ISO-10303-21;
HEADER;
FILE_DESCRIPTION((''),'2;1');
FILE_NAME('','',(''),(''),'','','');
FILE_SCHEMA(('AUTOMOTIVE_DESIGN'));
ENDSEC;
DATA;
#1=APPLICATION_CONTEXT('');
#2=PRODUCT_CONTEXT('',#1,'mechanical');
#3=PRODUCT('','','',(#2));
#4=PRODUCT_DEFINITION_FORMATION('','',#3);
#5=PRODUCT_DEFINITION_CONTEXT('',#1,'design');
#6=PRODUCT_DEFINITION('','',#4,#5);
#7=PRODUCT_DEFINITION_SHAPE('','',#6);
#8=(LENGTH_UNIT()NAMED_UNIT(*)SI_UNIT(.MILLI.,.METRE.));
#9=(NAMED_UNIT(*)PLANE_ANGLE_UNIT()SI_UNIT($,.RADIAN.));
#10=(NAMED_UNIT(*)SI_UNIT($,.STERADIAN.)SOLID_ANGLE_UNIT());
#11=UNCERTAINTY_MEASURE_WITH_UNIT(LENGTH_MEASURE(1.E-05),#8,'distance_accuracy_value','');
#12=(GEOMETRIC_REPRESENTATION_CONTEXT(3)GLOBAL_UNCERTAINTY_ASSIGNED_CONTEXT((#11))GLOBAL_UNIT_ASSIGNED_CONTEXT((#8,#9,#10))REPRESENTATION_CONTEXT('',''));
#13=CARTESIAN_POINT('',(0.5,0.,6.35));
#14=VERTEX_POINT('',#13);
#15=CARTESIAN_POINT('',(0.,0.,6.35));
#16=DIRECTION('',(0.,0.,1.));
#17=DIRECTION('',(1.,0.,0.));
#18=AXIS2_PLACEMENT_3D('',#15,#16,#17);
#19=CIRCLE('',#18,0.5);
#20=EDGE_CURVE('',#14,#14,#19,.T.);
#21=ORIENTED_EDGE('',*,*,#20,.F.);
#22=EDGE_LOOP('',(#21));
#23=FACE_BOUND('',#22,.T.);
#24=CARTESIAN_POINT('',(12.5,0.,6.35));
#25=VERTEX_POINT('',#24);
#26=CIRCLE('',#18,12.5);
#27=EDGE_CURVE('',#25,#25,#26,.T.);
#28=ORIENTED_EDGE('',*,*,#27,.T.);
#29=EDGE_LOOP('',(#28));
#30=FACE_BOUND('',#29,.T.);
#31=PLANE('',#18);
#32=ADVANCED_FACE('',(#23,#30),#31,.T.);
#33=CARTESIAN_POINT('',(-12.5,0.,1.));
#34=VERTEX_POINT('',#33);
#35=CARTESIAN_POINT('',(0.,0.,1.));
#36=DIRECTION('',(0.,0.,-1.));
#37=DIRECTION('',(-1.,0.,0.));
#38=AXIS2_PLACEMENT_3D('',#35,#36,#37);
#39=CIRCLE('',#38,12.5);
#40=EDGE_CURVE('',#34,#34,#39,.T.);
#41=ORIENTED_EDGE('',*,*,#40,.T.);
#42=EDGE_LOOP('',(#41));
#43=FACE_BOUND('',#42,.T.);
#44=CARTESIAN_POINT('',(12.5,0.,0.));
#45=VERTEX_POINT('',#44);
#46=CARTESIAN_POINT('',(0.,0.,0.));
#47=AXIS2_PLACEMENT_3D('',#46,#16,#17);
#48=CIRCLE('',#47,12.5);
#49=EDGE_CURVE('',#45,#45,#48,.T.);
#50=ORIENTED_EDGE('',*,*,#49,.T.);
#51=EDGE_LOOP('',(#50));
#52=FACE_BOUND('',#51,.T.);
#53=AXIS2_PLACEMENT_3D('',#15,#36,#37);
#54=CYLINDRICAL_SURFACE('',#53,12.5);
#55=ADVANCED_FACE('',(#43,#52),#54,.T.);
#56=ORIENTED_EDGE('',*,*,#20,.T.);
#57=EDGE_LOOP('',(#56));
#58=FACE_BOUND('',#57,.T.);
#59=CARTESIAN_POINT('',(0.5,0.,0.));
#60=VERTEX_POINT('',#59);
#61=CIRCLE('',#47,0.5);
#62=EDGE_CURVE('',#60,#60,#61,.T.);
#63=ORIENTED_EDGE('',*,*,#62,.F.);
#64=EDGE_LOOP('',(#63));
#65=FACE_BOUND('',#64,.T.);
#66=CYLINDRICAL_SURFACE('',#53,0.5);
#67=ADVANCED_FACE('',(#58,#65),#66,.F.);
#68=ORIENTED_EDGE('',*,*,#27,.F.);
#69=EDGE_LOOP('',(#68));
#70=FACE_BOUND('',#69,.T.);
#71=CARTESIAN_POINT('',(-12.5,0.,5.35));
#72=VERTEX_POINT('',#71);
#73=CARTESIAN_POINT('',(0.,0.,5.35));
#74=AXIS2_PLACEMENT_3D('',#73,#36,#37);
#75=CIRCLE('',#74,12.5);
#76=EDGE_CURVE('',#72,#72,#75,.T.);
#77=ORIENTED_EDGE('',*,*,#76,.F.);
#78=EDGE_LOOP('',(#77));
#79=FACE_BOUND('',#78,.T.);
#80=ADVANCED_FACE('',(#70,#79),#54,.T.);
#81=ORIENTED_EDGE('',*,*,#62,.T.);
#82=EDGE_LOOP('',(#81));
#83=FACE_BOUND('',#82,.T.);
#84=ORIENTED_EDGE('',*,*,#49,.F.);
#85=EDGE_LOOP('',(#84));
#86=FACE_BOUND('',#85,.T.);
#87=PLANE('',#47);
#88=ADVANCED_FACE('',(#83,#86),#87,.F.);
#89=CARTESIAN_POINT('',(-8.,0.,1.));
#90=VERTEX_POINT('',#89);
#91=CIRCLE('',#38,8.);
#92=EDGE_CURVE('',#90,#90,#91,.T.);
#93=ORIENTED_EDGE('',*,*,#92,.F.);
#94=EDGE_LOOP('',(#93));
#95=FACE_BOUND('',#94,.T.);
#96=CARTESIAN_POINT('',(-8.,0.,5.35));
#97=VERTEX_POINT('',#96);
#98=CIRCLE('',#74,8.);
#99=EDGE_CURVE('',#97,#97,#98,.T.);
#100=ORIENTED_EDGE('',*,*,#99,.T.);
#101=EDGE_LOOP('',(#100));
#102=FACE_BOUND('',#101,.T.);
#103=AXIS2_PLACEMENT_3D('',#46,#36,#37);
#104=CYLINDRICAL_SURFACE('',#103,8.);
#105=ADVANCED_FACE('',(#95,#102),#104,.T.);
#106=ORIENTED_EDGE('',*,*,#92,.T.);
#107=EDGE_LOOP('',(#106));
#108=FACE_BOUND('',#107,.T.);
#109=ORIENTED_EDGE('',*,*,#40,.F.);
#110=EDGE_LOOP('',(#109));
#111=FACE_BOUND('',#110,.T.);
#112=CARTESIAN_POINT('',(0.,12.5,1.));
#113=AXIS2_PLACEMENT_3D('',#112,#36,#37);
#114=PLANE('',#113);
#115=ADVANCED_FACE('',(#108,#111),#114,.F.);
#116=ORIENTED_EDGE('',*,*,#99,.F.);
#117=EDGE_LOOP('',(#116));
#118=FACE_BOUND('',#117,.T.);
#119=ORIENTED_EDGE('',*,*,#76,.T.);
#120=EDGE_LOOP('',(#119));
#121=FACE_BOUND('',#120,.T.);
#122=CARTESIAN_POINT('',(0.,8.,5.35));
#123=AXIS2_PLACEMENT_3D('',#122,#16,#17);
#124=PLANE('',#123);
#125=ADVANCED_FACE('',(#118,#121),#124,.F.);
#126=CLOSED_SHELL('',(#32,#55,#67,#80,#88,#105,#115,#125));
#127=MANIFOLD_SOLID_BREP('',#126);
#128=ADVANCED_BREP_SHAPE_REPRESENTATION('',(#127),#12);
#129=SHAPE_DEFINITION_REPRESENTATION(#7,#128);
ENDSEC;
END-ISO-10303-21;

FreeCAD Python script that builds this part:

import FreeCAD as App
import Part
import Sketcher

V = App.Vector

doc = App.newDocument("Part")
body = doc.addObject("PartDesign::Body", "Body")

# Sketch on XY plane
sketch1 = doc.addObject("Sketcher::SketchObject", "Sketch")
body.addObject(sketch1)
sketch1.AttachmentSupport = (doc.XY_Plane, [""])
sketch1.MapMode = "FlatFace"
sketch1.addGeometry([
    Part.Circle(V(0, 0, 0), V(0, 0, 1), 12.5),
    Part.Circle(V(0, 0, 0), V(0, 0, 1), 0.5),
], False)
sketch1.addConstraint([
    Sketcher.Constraint("Coincident", 0, 3, -1, 1),
    Sketcher.Constraint("Coincident", 1, 3, -1, 1),
    Sketcher.Constraint("Diameter", 0, 25.0),
    Sketcher.Constraint("Diameter", 1, 1.0),
])
pad1 = doc.addObject("PartDesign::Pad", "Pad")
body.addObject(pad1)
pad1.Profile = sketch1
pad1.Length = 6.35

# Sketch on YZ plane
sketch2 = doc.addObject("Sketcher::SketchObject", "Sketch001")
body.addObject(sketch2)
sketch2.AttachmentSupport = (doc.YZ_Plane, [""])
sketch2.MapMode = "FlatFace"
sketch2.addGeometry([
    Part.LineSegment(V(12.5, 5.35, 0), V(8, 5.35, 0)),
    Part.LineSegment(V(8, 5.35, 0), V(8, 1, 0)),
    Part.LineSegment(V(8, 1, 0), V(12.5, 1, 0)),
    Part.LineSegment(V(12.5, 1, 0), V(12.5, 5.35, 0)),
], False)
sketch2.addConstraint([
    Sketcher.Constraint("Coincident", 0, 2, 1, 1),
    Sketcher.Constraint("Coincident", 1, 2, 2, 1),
    Sketcher.Constraint("Coincident", 2, 2, 3, 1),
    Sketcher.Constraint("Coincident", 3, 2, 0, 1),
    Sketcher.Constraint("Horizontal", 0),
    Sketcher.Constraint("Vertical", 1),
    Sketcher.Constraint("Horizontal", 2),
    Sketcher.Constraint("Vertical", 3),
    Sketcher.Constraint("DistanceX", 0, 2, 0, 1, 4.5),
    Sketcher.Constraint("DistanceX", -1, 1, 0, 2, 8.0),
    Sketcher.Constraint("DistanceY", -1, 1, 1, 2, 1.0),
    Sketcher.Constraint("DistanceY", 1, 2, 1, 1, 4.35),
])
groove = doc.addObject("PartDesign::Groove", "Groove")
body.addObject(groove)
groove.Profile = sketch2
groove.ReferenceAxis = (sketch2, ["V_Axis"])
groove.Angle = 360

doc.recompute()
